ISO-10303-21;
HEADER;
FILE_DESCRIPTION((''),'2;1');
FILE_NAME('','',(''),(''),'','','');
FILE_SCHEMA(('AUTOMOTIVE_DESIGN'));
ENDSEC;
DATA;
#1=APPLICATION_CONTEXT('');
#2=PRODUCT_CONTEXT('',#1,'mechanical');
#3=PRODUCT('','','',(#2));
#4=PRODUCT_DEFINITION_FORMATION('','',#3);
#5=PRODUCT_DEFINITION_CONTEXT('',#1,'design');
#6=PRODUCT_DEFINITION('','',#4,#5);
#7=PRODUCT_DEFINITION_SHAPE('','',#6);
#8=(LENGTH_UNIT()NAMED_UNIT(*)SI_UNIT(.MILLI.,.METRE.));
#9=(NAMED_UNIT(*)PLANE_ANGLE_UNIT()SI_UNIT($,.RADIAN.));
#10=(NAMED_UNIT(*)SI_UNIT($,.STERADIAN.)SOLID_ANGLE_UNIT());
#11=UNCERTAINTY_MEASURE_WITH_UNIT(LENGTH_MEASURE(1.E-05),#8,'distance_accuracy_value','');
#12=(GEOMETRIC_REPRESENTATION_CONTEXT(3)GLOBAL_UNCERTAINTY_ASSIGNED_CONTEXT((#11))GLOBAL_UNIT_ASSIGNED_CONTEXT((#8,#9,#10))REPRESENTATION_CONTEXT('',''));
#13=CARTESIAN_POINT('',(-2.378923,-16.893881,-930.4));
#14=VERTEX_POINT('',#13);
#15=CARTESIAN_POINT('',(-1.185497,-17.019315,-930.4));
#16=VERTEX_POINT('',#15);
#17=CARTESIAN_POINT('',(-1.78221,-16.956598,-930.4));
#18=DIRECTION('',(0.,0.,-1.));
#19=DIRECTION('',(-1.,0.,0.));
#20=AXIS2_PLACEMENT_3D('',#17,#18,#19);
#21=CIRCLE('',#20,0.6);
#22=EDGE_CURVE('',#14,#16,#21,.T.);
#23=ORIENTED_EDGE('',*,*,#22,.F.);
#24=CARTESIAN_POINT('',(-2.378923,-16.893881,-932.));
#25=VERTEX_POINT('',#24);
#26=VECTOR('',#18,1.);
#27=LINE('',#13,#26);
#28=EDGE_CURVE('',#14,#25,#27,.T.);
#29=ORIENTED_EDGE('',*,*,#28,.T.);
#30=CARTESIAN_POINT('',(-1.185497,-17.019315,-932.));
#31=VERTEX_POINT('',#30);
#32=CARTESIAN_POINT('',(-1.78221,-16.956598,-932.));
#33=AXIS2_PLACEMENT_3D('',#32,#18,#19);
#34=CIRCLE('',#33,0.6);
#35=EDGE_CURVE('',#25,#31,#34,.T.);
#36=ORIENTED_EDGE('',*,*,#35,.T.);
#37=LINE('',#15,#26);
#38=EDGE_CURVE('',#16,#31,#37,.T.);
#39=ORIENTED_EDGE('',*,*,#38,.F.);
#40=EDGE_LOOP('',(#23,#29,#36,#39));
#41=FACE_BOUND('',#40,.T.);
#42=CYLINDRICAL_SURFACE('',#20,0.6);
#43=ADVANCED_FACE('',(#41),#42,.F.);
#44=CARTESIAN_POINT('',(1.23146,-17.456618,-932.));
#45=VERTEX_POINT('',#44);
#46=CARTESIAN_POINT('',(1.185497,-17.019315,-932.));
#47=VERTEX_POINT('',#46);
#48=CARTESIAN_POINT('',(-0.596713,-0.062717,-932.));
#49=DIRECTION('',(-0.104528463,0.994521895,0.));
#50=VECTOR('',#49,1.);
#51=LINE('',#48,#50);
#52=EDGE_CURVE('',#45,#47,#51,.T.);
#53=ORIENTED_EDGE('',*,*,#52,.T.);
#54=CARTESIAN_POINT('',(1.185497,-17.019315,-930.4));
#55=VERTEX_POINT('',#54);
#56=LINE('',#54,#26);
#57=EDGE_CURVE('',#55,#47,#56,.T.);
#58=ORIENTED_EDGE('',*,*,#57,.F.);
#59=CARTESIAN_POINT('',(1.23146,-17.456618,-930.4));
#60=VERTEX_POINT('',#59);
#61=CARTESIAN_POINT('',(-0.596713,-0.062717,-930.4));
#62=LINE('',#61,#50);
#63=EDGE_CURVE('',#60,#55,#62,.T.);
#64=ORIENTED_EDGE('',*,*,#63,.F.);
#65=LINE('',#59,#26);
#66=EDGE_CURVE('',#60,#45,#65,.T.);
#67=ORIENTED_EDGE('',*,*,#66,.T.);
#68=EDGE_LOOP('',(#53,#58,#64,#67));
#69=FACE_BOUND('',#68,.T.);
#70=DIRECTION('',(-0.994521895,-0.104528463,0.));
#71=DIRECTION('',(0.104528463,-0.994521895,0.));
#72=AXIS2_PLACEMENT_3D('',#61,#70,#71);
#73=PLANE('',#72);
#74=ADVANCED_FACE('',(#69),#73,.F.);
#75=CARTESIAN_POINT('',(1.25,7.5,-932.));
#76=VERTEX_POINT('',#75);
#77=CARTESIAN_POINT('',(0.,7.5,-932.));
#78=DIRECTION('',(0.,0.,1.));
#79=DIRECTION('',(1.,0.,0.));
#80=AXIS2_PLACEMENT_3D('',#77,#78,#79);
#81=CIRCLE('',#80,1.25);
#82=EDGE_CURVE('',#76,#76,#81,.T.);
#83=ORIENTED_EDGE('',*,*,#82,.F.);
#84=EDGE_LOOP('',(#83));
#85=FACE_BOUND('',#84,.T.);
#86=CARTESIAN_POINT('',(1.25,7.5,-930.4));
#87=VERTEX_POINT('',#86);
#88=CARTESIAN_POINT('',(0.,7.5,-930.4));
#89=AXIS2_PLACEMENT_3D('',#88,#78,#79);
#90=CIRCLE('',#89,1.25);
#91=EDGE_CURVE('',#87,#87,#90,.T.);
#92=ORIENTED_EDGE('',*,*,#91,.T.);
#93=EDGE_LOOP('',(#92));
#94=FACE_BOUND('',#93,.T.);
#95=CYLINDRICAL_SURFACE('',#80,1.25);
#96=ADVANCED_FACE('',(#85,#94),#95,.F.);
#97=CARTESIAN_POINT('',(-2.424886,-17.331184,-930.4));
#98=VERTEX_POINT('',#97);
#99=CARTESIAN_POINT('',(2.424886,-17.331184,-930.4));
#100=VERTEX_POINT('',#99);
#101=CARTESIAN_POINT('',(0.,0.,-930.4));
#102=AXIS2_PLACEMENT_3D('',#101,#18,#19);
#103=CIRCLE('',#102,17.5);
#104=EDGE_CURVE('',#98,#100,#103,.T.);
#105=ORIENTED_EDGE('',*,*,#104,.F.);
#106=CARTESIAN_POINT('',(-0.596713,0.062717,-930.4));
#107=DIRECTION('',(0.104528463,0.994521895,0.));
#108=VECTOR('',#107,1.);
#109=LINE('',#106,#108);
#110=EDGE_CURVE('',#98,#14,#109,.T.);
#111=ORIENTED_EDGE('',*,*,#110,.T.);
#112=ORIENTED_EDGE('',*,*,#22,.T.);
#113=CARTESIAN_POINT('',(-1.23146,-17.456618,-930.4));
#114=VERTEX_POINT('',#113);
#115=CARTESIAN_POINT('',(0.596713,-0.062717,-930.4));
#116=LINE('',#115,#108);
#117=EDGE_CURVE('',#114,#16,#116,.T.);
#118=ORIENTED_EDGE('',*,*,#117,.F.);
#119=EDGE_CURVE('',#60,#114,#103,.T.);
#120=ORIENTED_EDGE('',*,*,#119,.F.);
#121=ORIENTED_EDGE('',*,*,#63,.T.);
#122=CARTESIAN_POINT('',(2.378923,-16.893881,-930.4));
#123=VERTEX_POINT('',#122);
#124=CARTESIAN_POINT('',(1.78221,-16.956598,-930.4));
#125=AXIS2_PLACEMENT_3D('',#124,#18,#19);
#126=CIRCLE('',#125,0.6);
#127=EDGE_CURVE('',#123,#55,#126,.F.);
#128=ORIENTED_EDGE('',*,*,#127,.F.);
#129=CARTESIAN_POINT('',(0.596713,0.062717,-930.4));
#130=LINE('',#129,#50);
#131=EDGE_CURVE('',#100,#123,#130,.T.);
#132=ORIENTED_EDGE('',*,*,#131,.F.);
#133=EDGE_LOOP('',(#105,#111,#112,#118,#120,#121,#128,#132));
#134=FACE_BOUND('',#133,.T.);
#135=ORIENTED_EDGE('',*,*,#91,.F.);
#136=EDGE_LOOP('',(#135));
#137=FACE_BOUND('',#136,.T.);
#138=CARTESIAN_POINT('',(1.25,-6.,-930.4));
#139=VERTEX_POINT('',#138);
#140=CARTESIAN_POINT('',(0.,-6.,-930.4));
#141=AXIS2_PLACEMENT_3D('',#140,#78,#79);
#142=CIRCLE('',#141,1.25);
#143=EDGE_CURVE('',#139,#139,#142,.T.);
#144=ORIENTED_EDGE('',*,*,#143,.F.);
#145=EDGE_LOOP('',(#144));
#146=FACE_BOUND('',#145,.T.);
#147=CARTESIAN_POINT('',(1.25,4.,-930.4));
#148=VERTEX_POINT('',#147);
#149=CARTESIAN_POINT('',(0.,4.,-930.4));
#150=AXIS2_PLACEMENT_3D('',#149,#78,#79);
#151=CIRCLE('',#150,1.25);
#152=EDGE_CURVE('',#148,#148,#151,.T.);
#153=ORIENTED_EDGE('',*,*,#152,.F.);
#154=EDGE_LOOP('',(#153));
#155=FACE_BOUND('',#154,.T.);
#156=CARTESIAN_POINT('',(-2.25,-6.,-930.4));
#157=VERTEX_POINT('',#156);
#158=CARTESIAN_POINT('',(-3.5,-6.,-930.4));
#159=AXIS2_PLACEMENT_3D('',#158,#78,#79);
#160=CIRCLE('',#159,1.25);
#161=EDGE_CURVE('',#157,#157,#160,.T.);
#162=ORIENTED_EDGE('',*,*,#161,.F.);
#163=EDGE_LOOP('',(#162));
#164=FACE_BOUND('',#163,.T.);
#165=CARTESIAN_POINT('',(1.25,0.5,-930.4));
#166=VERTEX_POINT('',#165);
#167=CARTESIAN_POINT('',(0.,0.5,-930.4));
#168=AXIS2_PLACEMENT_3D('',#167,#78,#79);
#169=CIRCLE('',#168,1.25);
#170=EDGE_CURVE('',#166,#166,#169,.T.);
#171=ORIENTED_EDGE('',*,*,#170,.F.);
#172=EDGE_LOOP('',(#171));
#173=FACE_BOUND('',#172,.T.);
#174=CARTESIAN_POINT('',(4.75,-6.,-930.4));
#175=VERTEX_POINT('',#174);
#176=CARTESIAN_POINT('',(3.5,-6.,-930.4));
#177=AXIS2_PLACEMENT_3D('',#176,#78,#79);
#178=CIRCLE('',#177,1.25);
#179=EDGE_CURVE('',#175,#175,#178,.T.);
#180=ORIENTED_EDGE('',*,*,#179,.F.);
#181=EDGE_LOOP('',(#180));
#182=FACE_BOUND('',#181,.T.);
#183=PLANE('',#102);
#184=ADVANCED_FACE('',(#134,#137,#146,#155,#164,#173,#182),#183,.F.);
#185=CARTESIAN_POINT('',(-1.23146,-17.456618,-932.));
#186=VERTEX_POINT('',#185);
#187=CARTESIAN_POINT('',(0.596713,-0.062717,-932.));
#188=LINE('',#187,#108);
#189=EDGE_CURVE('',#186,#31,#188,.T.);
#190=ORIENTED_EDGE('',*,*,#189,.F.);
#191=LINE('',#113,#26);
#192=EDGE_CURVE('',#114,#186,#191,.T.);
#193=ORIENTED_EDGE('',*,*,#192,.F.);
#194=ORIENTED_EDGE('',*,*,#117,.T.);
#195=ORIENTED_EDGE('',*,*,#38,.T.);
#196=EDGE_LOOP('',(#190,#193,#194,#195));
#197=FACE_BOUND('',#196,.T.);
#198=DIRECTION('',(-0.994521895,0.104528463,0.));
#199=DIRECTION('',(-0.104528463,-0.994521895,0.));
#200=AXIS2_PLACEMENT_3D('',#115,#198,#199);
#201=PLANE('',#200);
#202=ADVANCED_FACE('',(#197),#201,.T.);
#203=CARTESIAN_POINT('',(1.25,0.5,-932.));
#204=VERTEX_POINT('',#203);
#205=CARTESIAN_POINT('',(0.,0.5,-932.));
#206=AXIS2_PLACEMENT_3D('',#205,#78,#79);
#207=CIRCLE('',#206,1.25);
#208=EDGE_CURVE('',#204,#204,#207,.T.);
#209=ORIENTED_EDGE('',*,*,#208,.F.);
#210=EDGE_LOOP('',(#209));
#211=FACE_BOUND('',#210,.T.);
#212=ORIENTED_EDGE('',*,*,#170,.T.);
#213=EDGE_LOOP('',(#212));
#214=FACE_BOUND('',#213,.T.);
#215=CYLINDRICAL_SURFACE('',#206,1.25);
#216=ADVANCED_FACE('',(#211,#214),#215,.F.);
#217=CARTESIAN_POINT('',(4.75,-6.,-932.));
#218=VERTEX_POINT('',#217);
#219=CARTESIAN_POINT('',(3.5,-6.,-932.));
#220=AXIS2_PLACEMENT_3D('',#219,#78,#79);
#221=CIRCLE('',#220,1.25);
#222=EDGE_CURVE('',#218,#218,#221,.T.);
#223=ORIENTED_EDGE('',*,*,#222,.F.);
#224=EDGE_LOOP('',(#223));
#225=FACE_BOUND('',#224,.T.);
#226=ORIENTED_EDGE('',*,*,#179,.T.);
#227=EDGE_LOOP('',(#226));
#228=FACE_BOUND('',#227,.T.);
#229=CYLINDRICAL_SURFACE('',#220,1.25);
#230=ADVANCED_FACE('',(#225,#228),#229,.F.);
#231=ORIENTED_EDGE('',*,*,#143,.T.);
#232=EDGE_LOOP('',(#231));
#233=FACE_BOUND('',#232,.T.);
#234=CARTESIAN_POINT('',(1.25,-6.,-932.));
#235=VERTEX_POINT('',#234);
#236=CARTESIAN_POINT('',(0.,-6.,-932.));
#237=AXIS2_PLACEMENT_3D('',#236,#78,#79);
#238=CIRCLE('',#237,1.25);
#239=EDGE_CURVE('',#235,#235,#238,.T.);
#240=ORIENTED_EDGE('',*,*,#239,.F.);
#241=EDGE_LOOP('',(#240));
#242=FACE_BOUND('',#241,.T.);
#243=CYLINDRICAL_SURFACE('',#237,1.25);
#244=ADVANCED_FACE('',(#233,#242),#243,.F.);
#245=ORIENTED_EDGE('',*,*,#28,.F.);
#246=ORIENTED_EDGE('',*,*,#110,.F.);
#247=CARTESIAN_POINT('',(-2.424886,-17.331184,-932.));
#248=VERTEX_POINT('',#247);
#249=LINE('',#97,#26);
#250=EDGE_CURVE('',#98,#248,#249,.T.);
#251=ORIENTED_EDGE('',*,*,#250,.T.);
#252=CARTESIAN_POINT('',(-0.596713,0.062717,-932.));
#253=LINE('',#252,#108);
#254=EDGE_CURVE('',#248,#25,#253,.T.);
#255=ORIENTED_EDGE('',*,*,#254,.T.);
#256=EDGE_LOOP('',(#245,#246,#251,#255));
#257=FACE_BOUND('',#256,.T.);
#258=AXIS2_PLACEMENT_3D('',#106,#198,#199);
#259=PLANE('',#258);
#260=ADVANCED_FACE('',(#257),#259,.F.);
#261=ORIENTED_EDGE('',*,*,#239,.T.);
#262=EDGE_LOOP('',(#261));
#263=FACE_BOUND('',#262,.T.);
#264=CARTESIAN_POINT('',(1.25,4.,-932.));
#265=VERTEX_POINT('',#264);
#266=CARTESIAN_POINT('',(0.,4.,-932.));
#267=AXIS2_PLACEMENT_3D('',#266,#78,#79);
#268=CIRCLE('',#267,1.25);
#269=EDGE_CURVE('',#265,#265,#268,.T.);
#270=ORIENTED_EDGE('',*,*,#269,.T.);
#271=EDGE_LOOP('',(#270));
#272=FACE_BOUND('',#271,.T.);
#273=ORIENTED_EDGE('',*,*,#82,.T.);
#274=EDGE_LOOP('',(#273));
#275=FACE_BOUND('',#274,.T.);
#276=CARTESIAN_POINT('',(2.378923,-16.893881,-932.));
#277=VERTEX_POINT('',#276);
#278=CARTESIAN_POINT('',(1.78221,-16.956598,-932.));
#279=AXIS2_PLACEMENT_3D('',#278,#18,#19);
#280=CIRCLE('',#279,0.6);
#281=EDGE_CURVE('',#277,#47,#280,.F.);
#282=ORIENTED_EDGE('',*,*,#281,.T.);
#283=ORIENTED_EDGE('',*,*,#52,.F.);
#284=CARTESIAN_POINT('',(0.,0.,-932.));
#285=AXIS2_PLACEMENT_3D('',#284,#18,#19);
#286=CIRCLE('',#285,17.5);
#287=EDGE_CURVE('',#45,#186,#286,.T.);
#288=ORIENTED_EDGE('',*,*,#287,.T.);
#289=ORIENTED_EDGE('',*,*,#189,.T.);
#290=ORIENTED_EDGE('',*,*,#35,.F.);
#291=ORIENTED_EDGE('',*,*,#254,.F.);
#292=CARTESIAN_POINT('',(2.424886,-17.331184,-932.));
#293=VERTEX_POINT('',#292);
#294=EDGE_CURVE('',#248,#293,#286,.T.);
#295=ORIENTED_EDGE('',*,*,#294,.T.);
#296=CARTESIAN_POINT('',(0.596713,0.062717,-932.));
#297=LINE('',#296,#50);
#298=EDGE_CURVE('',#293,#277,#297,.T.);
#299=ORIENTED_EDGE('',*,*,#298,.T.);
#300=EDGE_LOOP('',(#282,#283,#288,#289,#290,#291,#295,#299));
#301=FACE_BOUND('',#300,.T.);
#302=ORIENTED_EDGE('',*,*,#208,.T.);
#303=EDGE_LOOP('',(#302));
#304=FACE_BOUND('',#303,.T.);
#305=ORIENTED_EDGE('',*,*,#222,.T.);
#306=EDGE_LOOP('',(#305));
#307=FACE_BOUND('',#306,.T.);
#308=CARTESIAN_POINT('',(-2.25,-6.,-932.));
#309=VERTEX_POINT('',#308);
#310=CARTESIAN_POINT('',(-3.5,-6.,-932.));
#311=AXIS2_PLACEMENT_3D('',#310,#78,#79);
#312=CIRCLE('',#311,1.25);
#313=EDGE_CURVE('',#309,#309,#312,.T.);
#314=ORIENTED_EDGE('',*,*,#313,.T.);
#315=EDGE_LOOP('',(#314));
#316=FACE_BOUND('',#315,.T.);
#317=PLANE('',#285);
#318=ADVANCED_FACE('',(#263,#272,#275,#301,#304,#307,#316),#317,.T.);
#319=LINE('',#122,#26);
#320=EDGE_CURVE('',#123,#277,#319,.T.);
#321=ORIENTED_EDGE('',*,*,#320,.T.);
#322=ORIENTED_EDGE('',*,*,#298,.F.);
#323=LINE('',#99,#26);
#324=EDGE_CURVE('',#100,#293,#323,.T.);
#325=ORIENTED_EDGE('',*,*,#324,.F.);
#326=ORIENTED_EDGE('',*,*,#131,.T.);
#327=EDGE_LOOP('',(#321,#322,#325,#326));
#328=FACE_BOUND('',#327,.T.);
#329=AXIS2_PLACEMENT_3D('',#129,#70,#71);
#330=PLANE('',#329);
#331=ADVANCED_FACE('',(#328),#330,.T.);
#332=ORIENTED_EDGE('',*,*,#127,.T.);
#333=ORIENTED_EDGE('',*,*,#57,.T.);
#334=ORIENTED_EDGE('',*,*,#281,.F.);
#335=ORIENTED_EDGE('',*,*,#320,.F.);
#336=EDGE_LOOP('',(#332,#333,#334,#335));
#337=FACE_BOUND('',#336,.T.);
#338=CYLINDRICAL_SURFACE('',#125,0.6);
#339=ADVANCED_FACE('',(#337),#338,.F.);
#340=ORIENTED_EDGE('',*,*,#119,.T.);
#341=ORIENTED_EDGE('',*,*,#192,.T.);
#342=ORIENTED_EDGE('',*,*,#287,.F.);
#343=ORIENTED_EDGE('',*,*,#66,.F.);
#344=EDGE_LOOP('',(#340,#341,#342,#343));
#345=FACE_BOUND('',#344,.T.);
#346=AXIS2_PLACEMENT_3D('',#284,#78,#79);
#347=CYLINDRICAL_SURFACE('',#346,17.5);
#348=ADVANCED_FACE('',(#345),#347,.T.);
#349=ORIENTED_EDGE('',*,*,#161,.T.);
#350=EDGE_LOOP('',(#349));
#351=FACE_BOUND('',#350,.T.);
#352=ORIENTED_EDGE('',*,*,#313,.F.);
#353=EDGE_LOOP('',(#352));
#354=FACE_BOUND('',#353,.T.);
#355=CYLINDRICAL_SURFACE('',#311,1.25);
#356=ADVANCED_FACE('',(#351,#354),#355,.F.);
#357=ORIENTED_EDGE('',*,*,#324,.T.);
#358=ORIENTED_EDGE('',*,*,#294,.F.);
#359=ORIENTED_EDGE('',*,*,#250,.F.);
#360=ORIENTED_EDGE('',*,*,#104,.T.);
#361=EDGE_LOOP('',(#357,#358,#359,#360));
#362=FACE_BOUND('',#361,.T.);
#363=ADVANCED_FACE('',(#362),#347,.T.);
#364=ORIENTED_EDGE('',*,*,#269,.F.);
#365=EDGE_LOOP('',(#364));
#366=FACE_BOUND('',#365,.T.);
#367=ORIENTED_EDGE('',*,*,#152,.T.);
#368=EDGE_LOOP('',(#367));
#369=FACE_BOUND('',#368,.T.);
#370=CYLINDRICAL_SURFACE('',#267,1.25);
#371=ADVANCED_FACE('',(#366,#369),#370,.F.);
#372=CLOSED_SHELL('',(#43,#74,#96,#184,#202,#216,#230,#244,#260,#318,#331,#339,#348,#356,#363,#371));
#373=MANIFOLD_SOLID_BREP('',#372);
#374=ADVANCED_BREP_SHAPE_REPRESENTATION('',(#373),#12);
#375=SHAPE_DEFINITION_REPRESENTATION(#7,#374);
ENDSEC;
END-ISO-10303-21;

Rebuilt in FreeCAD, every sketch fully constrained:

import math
import FreeCAD as App
import Part
import Sketcher

V = App.Vector
Q = App.Units.Quantity

doc = App.newDocument("Part")
body = doc.addObject("PartDesign::Body", "Body")

# Sketch on XY plane
sketch1 = doc.addObject("Sketcher::SketchObject", "Sketch")
body.addObject(sketch1)
sketch1.AttachmentSupport = (doc.XY_Plane, [""])
sketch1.MapMode = "FlatFace"
sketch1.AttachmentOffset = App.Placement(V(0, 0, -930.4), App.Rotation())
sketch1.addGeometry(Part.Circle(V(0, 0, 0), V(0, 0, 1), 18), False)
sketch1.addConstraint([
    Sketcher.Constraint("Coincident", 0, 3, -1, 1),
    Sketcher.Constraint("Diameter", 0, 35.0),
])
pad1 = doc.addObject("PartDesign::Pad", "Pad")
body.addObject(pad1)
pad1.Profile = sketch1
pad1.Length = 1.6
pad1.Reversed = True

# Sketch on XY plane
sketch2 = doc.addObject("Sketcher::SketchObject", "Sketch001")
body.addObject(sketch2)
sketch2.AttachmentSupport = (doc.XY_Plane, [""])
sketch2.MapMode = "FlatFace"
sketch2.AttachmentOffset = App.Placement(V(0, 0, -932), App.Rotation())
sketch2.addGeometry([
    Part.LineSegment(V(2.38, -16.89, 0), V(2.42, -17.33, 0)),  # 0
    Part.ArcOfCircle(Part.Circle(V(0, 0, 0), V(0, 0, 1), 17.5), math.radians(-85.96), math.radians(-82.04)),  # 1
    Part.LineSegment(V(1.23, -17.46, 0), V(1.19, -17.02, 0)),  # 2
    Part.ArcOfCircle(Part.Circle(V(1.78, -16.96, 0), V(0, 0, 1), 0.6), math.radians(6), math.radians(186)),  # 3
    Part.ArcOfCircle(Part.Circle(V(0, 0, 0), V(0, 0, 1), 17.5), math.radians(-97.96), math.radians(-94.04)),  # 4
    Part.LineSegment(V(-2.42, -17.33, 0), V(-2.38, -16.89, 0)),  # 5
    Part.ArcOfCircle(Part.Circle(V(-1.78, -16.96, 0), V(0, 0, 1), 0.6), math.radians(-6), math.radians(174)),  # 6
    Part.LineSegment(V(-1.19, -17.02, 0), V(-1.23, -17.46, 0)),  # 7
], False)
sketch2.addConstraint([
    Sketcher.Constraint("Coincident", 0, 2, 1, 2),
    Sketcher.Constraint("Coincident", 1, 1, 2, 1),
    Sketcher.Constraint("Tangent", 2, 2, 3, 2),
    Sketcher.Constraint("Tangent", 3, 1, 0, 1),
    Sketcher.Constraint("Coincident", 4, 1, 5, 1),
    Sketcher.Constraint("Tangent", 5, 2, 6, 2),
    Sketcher.Constraint("Tangent", 6, 1, 7, 1),
    Sketcher.Constraint("Coincident", 7, 2, 4, 2),
    Sketcher.Constraint("Coincident", 1, 3, -1, 1),
    Sketcher.Constraint("Coincident", 4, 3, -1, 1),
    Sketcher.Constraint("Equal", 1, 4),
    Sketcher.Constraint("Equal", 3, 6),
    Sketcher.Constraint("Symmetric", 3, 3, 6, 3, -2),
    Sketcher.Constraint("Parallel", 0, 2),
    Sketcher.Constraint("Parallel", 5, 7),
    Sketcher.Constraint("Horizontal", 0, 2, 4, 1),
    Sketcher.Constraint("Equal", 0, 2),
    Sketcher.Constraint("Radius", 1, 17.5),
    Sketcher.Constraint("Radius", 3, 0.6),
    Sketcher.Constraint("Angle", 0, Q("-84 deg")),
    Sketcher.Constraint("DistanceY", 3, 3, -1, 1, 16.956598),
])
pocket1 = doc.addObject("PartDesign::Pocket", "Pocket")
body.addObject(pocket1)
pocket1.Profile = sketch2
pocket1.Type = "ThroughAll"
pocket1.Reversed = True

# Sketch on XY plane
sketch3 = doc.addObject("Sketcher::SketchObject", "Sketch002")
body.addObject(sketch3)
sketch3.AttachmentSupport = (doc.XY_Plane, [""])
sketch3.MapMode = "FlatFace"
sketch3.AttachmentOffset = App.Placement(V(0, 0, -930.4), App.Rotation())
sketch3.addGeometry([
    Part.Circle(V(0, 7.5, 0), V(0, 0, 1), 1.2),  # 0
    Part.Circle(V(0, 4, 0), V(0, 0, 1), 1.2),  # 1
    Part.Circle(V(0, 0.5, 0), V(0, 0, 1), 1.2),  # 2
    Part.Circle(V(-3.5, -6, 0), V(0, 0, 1), 1.2),  # 3
    Part.Circle(V(0, -6, 0), V(0, 0, 1), 1.2),  # 4
    Part.Circle(V(3.5, -6, 0), V(0, 0, 1), 1.2),  # 5
], False)
sketch3.addConstraint([
    Sketcher.Constraint("Equal", 0, 1),
    Sketcher.Constraint("Equal", 1, 2),
    Sketcher.Constraint("Equal", 2, 3),
    Sketcher.Constraint("Equal", 3, 4),
    Sketcher.Constraint("Equal", 4, 5),
    Sketcher.Constraint("Symmetric", 3, 3, 5, 3, -2),
    Sketcher.Constraint("PointOnObject", 0, 3, -2),
    Sketcher.Constraint("PointOnObject", 1, 3, -2),
    Sketcher.Constraint("PointOnObject", 2, 3, -2),
    Sketcher.Constraint("PointOnObject", 4, 3, -2),
    Sketcher.Constraint("Horizontal", 3, 3, 4, 3),
    Sketcher.Constraint("Diameter", 0, 2.5),
    Sketcher.Constraint("DistanceY", -1, 1, 1, 3, 4.0),
    Sketcher.Constraint("DistanceY", 3, 3, -1, 1, 6.0),
    Sketcher.Constraint("DistanceY", 2, 3, 0, 3, 7.0),
    Sketcher.Constraint("DistanceX", 3, 3, 5, 3, 7.0),
    Sketcher.Constraint("DistanceY", -1, 1, 0, 3, 7.5),
])
pocket2 = doc.addObject("PartDesign::Pocket", "Pocket001")
body.addObject(pocket2)
pocket2.Profile = sketch3
pocket2.Type = "ThroughAll"

doc.recompute()
